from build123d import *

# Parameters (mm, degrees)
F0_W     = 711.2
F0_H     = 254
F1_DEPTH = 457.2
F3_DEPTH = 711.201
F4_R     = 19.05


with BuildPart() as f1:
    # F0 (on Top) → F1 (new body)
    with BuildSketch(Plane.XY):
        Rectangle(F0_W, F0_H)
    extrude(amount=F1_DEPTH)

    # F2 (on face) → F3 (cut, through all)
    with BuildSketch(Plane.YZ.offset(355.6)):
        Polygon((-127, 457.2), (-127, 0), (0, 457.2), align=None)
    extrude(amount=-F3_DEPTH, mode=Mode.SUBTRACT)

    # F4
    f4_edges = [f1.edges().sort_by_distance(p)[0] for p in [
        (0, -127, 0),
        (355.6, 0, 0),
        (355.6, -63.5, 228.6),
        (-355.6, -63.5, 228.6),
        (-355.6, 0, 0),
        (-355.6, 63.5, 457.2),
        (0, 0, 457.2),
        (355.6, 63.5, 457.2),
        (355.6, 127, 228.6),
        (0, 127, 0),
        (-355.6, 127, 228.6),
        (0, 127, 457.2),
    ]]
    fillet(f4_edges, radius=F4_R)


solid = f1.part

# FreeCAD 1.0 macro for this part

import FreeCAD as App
import Part
import Sketcher

V = App.Vector
Q = App.Units.Quantity

doc = App.newDocument("Part")
params = doc.addObject("Spreadsheet::Sheet", "Params")
for row, (alias, value) in enumerate([
    ("sketch1_width", "28 in"),
    ("sketch1_height", "10 in"),
    ("pad1_length", "18 in"),
    ("sketch2_width", "5 in"),
    ("sketch2_height", "18 in"),
    ("fillet_radius", "0.75 in"),
], start=1):
    params.set(f"A{row}", alias)
    params.set(f"B{row}", "=" + value)
    params.setAlias(f"B{row}", alias)

body = doc.addObject("PartDesign::Body", "Body")

# Sketch on XY plane
sketch1 = body.newObject("Sketcher::SketchObject", "Sketch")
sketch1.AttachmentSupport = (doc.getObject("XY_Plane"), [""])
sketch1.MapMode = "FlatFace"
sketch1.addGeometry([
    Part.LineSegment(V(-356, 127, 0), V(-356, -127, 0)),
    Part.LineSegment(V(-356, -127, 0), V(356, -127, 0)),
    Part.LineSegment(V(356, -127, 0), V(356, 127, 0)),
    Part.LineSegment(V(356, 127, 0), V(-356, 127, 0)),
], False)
sketch1.addConstraint([
    Sketcher.Constraint("Coincident", 0, 2, 1, 1),
    Sketcher.Constraint("Coincident", 1, 2, 2, 1),
    Sketcher.Constraint("Coincident", 2, 2, 3, 1),
    Sketcher.Constraint("Coincident", 3, 2, 0, 1),
    Sketcher.Constraint("Vertical", 0),
    Sketcher.Constraint("Horizontal", 1),
    Sketcher.Constraint("Vertical", 2),
    Sketcher.Constraint("Horizontal", 3),
    Sketcher.Constraint("Symmetric", 0, 2, 2, 2, -1, 1),
    Sketcher.Constraint("DistanceX", 1, 1, 1, 2, Q("28 in")),
    Sketcher.Constraint("DistanceY", 0, 2, 0, 1, Q("10 in")),
])
sketch1.setExpression("Constraints[9]", "Params.sketch1_width")
sketch1.setExpression("Constraints[10]", "Params.sketch1_height")
pad1 = body.newObject("PartDesign::Pad", "Pad")
pad1.Profile = sketch1
pad1.setExpression("Length", "Params.pad1_length")

# Sketch on YZ plane
sketch2 = body.newObject("Sketcher::SketchObject", "Sketch001")
sketch2.AttachmentSupport = (doc.getObject("YZ_Plane"), [""])
sketch2.MapMode = "FlatFace"
sketch2.AttachmentOffset = App.Placement(V(0, 0, 14 * 25.4), App.Rotation())
sketch2.addGeometry([
    Part.LineSegment(V(-127, 457, 0), V(-127, 0, 0)),
    Part.LineSegment(V(-127, 0, 0), V(0, 457, 0)),
    Part.LineSegment(V(0, 457, 0), V(-127, 457, 0)),
], False)
sketch2.addConstraint([
    Sketcher.Constraint("Coincident", 0, 2, 1, 1),
    Sketcher.Constraint("Coincident", 1, 2, 2, 1),
    Sketcher.Constraint("Coincident", 2, 2, 0, 1),
    Sketcher.Constraint("Vertical", 0),
    Sketcher.Constraint("Horizontal", 2),
    Sketcher.Constraint("PointOnObject", 0, 2, -1),
    Sketcher.Constraint("PointOnObject", 1, 2, -2),
    Sketcher.Constraint("DistanceX", 2, 2, 2, 1, Q("5 in")),
    Sketcher.Constraint("DistanceY", 0, 2, 0, 1, Q("18 in")),
])
sketch2.setExpression("Constraints[7]", "Params.sketch2_width")
sketch2.setExpression("Constraints[8]", "Params.sketch2_height")
pocket1 = body.newObject("PartDesign::Pocket", "Pocket")
pocket1.Profile = sketch2
pocket1.Type = "ThroughAll"
doc.recompute()

fillet = body.newObject("PartDesign::Fillet", "Fillet")
fillet.Base = (pocket1, ["Edge1"])
fillet.UseAllEdges = True
fillet.setExpression("Radius", "Params.fillet_radius")

doc.recompute()
